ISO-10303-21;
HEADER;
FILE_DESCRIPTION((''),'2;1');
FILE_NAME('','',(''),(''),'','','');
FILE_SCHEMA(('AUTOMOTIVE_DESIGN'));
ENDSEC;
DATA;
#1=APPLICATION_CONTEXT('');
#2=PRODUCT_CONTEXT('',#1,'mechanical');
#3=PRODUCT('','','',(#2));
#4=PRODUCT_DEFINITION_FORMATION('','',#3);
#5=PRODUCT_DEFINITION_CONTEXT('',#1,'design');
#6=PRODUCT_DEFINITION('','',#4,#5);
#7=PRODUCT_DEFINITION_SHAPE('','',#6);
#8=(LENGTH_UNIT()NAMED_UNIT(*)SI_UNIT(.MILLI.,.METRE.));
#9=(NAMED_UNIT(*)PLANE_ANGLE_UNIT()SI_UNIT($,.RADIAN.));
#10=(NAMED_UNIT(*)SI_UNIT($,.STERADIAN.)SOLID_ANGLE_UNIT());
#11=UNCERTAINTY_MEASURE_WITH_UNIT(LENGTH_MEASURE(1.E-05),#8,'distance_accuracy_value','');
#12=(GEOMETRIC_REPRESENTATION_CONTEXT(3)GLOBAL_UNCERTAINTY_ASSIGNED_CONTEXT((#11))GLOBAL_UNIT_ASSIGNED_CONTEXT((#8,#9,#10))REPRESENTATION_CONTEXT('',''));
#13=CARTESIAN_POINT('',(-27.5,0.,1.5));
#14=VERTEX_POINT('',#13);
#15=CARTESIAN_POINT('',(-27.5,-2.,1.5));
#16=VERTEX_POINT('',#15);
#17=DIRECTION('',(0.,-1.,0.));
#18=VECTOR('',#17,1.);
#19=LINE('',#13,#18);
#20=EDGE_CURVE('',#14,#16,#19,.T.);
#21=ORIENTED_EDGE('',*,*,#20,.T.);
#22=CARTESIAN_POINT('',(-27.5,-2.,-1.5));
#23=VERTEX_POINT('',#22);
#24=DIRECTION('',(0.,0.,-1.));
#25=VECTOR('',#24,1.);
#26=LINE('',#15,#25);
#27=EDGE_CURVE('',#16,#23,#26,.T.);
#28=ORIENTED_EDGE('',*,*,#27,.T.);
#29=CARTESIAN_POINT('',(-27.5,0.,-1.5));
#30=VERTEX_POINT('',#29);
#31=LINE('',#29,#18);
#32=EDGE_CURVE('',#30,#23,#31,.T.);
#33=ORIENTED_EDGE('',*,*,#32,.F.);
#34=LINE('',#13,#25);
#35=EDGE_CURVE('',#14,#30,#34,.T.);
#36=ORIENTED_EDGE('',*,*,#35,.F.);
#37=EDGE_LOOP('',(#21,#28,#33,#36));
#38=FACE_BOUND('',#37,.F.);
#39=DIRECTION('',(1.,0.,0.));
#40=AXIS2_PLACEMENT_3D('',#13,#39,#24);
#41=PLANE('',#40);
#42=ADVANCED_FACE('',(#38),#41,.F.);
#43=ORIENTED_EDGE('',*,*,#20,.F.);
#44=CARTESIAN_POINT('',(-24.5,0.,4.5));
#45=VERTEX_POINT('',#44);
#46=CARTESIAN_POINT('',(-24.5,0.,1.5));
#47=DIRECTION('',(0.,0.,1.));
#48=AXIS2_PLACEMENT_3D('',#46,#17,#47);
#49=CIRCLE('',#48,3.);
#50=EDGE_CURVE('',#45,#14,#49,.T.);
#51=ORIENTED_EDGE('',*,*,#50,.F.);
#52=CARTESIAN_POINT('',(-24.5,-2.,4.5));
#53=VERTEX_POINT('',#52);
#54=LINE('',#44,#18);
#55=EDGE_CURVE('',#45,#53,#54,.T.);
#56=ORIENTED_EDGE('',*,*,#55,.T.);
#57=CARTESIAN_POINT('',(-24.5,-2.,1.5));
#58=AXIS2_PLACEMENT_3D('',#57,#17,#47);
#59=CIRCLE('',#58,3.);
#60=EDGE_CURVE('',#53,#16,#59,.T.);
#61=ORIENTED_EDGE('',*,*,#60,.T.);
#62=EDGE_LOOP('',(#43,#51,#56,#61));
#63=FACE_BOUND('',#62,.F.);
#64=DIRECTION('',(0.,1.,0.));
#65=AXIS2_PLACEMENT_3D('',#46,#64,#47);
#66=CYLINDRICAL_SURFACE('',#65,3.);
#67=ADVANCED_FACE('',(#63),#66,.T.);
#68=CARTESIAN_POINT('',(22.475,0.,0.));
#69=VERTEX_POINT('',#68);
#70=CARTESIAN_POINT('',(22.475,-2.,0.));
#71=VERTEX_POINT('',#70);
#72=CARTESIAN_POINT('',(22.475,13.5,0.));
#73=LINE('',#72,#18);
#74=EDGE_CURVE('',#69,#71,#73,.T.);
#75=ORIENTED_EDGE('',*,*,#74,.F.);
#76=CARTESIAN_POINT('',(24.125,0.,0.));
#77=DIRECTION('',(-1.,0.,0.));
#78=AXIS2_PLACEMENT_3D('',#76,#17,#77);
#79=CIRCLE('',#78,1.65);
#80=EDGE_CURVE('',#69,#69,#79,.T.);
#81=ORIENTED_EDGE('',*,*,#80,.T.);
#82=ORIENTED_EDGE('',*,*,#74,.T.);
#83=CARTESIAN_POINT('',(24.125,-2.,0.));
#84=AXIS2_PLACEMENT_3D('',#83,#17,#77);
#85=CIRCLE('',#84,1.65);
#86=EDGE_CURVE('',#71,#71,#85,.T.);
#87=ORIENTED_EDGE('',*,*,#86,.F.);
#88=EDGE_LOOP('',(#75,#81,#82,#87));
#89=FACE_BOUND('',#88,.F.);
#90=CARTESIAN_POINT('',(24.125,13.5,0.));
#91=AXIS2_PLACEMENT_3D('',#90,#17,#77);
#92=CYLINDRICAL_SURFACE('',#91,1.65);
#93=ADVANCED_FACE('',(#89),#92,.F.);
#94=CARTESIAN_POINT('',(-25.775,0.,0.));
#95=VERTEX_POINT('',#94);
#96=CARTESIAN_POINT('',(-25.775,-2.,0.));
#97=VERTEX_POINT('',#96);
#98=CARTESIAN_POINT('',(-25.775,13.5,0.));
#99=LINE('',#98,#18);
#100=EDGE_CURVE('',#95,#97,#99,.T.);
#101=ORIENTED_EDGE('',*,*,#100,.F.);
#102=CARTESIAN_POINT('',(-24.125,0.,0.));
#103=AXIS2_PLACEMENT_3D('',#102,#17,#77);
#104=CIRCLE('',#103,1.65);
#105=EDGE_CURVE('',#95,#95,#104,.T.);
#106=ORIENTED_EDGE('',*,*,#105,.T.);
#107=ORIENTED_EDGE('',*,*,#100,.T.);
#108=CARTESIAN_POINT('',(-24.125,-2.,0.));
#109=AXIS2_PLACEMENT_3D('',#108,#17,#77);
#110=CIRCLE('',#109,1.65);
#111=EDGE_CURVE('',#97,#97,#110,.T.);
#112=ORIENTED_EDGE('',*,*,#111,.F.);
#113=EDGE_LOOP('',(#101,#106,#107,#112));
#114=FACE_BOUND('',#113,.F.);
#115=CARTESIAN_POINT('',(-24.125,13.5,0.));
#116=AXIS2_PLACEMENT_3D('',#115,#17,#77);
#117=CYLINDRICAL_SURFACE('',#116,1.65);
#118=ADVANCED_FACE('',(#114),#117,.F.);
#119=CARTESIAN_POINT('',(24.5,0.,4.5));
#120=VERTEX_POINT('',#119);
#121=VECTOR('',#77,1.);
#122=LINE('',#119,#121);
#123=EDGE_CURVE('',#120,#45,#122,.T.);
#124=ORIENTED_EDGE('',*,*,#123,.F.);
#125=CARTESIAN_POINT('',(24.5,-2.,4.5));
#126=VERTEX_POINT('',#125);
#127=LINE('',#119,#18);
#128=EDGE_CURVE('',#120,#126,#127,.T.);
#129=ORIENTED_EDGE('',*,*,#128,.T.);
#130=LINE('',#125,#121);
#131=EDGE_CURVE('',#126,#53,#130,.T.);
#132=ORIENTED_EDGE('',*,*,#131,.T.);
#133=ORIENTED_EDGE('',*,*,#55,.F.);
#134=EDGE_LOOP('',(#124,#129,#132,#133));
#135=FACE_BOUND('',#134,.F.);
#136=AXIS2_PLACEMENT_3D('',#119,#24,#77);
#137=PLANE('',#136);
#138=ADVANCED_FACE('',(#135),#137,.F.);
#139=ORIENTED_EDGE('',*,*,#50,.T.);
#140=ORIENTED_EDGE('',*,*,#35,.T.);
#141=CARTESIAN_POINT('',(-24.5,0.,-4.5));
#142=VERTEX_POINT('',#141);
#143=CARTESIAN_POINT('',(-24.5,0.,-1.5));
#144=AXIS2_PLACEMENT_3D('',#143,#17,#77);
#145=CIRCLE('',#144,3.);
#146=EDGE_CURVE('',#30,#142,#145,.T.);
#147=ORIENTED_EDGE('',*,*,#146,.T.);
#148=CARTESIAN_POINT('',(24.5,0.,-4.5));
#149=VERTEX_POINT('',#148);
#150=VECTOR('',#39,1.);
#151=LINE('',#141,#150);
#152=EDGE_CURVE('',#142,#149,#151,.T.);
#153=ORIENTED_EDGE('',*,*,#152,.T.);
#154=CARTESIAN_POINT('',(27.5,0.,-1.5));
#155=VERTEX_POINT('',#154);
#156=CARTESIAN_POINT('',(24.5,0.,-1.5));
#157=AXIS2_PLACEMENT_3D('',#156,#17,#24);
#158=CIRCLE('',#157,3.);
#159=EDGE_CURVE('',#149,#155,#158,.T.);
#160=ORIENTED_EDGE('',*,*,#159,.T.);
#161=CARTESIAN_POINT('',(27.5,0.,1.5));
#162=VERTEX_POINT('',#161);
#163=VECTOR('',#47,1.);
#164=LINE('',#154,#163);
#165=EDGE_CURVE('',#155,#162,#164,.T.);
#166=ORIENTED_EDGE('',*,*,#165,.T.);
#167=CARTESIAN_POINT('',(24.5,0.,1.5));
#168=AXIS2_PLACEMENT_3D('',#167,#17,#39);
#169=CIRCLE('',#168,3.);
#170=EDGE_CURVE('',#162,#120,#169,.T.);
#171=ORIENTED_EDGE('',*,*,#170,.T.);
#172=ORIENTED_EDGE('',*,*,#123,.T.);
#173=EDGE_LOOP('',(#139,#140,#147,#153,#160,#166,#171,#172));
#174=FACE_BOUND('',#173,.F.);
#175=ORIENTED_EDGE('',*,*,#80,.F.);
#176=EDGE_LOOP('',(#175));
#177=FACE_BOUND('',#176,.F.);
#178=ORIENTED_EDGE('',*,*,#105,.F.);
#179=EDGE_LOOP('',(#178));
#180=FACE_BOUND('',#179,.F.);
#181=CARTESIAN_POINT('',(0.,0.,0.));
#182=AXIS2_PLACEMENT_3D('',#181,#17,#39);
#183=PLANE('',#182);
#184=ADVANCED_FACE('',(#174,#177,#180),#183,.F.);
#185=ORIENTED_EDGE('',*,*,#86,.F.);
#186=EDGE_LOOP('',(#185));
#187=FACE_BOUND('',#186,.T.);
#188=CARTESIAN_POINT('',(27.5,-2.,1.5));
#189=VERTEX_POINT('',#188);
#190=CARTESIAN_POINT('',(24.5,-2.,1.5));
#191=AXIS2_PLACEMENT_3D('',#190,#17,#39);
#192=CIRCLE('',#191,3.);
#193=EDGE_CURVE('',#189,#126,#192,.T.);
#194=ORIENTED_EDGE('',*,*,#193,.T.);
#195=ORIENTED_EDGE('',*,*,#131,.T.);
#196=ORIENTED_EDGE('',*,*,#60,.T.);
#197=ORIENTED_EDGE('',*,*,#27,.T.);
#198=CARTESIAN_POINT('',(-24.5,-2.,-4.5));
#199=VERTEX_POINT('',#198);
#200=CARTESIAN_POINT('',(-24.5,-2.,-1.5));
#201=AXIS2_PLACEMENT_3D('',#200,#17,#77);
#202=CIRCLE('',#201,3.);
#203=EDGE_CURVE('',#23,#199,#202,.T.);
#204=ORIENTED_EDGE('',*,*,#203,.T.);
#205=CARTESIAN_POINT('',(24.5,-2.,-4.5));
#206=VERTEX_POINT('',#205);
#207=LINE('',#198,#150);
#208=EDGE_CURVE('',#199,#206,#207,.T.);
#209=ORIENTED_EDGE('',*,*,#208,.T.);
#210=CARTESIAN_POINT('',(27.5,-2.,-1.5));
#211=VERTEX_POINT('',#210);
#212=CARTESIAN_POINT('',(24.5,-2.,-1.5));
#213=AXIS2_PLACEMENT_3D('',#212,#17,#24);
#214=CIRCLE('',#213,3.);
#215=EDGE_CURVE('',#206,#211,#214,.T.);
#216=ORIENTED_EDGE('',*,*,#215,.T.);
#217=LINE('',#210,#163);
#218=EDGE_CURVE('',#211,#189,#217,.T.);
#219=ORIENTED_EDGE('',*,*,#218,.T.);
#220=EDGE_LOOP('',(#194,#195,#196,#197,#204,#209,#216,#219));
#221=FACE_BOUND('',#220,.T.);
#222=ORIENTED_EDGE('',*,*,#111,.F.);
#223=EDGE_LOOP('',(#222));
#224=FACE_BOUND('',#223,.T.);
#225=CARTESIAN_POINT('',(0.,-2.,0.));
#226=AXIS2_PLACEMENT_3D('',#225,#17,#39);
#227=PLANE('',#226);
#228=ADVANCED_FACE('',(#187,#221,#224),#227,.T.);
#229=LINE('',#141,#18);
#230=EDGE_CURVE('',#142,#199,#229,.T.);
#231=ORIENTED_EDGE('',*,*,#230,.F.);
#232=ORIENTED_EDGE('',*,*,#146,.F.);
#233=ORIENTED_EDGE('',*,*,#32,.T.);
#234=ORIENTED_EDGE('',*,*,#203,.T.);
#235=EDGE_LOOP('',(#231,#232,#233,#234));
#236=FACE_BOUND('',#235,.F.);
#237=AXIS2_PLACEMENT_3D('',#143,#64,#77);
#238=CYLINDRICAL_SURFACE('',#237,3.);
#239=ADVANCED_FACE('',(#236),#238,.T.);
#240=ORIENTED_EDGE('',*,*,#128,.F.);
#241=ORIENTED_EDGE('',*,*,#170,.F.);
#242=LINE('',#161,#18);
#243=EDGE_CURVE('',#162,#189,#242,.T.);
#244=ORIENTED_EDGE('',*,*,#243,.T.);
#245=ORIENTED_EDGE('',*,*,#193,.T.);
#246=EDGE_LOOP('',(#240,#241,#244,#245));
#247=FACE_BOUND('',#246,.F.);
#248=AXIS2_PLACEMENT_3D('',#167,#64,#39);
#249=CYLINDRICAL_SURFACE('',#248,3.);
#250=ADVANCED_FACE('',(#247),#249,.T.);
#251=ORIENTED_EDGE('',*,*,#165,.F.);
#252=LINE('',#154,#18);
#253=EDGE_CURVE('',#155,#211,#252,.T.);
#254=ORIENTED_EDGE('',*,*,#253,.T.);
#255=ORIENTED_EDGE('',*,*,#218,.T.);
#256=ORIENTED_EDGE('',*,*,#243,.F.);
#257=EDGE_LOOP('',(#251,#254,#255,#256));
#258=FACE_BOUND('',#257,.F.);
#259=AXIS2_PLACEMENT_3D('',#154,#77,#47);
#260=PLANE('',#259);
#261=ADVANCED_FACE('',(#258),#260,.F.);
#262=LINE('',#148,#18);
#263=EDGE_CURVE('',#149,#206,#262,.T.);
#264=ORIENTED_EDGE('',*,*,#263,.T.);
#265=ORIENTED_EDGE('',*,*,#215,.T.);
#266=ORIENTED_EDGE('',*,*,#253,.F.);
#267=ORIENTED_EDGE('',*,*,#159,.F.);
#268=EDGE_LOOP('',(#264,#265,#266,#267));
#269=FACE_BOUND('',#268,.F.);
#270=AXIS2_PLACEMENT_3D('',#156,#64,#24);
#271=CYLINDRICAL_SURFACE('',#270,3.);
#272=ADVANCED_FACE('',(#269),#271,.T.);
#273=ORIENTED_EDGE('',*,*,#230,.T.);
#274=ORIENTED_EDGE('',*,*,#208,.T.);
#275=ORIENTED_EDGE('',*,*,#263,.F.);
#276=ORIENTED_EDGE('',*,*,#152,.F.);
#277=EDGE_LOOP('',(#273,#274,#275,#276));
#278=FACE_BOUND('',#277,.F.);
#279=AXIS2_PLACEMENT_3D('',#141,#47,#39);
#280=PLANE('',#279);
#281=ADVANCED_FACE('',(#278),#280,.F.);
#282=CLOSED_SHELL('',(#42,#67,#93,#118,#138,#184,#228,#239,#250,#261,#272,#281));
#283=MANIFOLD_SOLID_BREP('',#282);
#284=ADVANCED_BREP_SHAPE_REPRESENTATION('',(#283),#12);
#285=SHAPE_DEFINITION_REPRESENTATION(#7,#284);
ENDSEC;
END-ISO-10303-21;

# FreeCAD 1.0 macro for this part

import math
import FreeCAD as App
import Part
import Sketcher
from FreeCAD import Vector
Q = App.Units.Quantity

doc = App.newDocument("Part")
body = doc.addObject("PartDesign::Body", "Body")

sketch1 = body.newObject("Sketcher::SketchObject", "Sketch")
sketch1.AttachmentSupport = (doc.getObject("XZ_Plane"), [""])
sketch1.MapMode = "FlatFace"
sketch1.addGeometry([
    Part.LineSegment(Vector(-24.5, -4.5, 0), Vector(24.5, -4.5, 0)),
    Part.ArcOfCircle(Part.Circle(Vector(24.5, -1.5, 0), Vector(0, 0, 1), 3), math.radians(-90), math.radians(0)),
    Part.LineSegment(Vector(27.5, -1.5, 0), Vector(27.5, 1.5, 0)),
    Part.ArcOfCircle(Part.Circle(Vector(24.5, 1.5, 0), Vector(0, 0, 1), 3), math.radians(0), math.radians(90)),
    Part.LineSegment(Vector(24.5, 4.5, 0), Vector(-24.5, 4.5, 0)),
    Part.ArcOfCircle(Part.Circle(Vector(-24.5, 1.5, 0), Vector(0, 0, 1), 3), math.radians(90), math.radians(180)),
    Part.LineSegment(Vector(-27.5, 1.5, 0), Vector(-27.5, -1.5, 0)),
    Part.ArcOfCircle(Part.Circle(Vector(-24.5, -1.5, 0), Vector(0, 0, 1), 3), math.radians(180), math.radians(270)),
], False)
sketch1.addConstraint([
    Sketcher.Constraint("Tangent", 0, 2, 1, 1),
    Sketcher.Constraint("Tangent", 1, 2, 2, 1),
    Sketcher.Constraint("Tangent", 2, 2, 3, 1),
    Sketcher.Constraint("Tangent", 3, 2, 4, 1),
    Sketcher.Constraint("Tangent", 4, 2, 5, 1),
    Sketcher.Constraint("Tangent", 5, 2, 6, 1),
    Sketcher.Constraint("Tangent", 6, 2, 7, 1),
    Sketcher.Constraint("Tangent", 7, 2, 0, 1),
    Sketcher.Constraint("Horizontal", 0),
    Sketcher.Constraint("Vertical", 2),
    Sketcher.Constraint("Horizontal", 4),
    Sketcher.Constraint("Vertical", 6),
    Sketcher.Constraint("Equal", 1, 3),
    Sketcher.Constraint("Equal", 3, 5),
    Sketcher.Constraint("Equal", 5, 7),
    Sketcher.Constraint("Symmetric", 1, 3, 5, 3, -1, 1),
    Sketcher.Constraint("Radius", 1, Q("3 mm")),
    Sketcher.Constraint("DistanceX", 0, 1, 0, 2, Q("49 mm")),
    Sketcher.Constraint("DistanceY", 2, 1, 2, 2, Q("3 mm")),
])
pad1 = body.newObject("PartDesign::Pad", "Pad")
pad1.Profile = sketch1
pad1.Length = 2

sketch2 = body.newObject("Sketcher::SketchObject", "Sketch001")
sketch2.AttachmentSupport = (doc.getObject("XZ_Plane"), [""])
sketch2.MapMode = "FlatFace"
sketch2.addGeometry([
    Part.Circle(Vector(24.125, 0, 0), Vector(0, 0, 1), 1.65),
    Part.Circle(Vector(-24.125, 0, 0), Vector(0, 0, 1), 1.65),
], False)
sketch2.addConstraint([
    Sketcher.Constraint("Equal", 0, 1),
    Sketcher.Constraint("Symmetric", 0, 3, 1, 3, -1, 1),
    Sketcher.Constraint("PointOnObject", 0, 3, -1),
    Sketcher.Constraint("Diameter", 0, Q("3.3 mm")),
    Sketcher.Constraint("DistanceX", 1, 3, 0, 3, Q("48.25 mm")),
])
doc.recompute()
hole = body.newObject("PartDesign::Hole", "Hole")
hole.Profile = sketch2
hole.ThreadType = "None"
hole.Diameter = 3.3
hole.DepthType = "Dimension"
hole.Depth = 13.5
hole.DrillPoint = "Angled"
hole.DrillPointAngle = 118
hole.Reversed = True

doc.recompute()
